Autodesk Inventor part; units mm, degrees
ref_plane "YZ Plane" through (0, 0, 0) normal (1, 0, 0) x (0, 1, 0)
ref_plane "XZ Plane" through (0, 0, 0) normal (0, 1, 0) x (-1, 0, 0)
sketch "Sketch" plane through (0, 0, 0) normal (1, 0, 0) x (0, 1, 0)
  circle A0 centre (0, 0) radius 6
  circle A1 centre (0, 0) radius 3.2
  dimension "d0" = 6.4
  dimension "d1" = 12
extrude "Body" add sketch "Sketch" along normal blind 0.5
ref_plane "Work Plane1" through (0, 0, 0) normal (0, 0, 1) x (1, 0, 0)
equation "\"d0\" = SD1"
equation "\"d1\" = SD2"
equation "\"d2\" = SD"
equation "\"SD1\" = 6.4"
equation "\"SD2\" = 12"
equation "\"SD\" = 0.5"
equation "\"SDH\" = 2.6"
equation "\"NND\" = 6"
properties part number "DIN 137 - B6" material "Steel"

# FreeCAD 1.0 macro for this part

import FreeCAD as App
import Part
import Sketcher
from FreeCAD import Vector
Q = App.Units.Quantity

doc = App.newDocument("Part")
params = doc.addObject("Spreadsheet::Sheet", "Params")
for row, (alias, value) in enumerate([
    ("sketch1_diameter", "12 mm"),
    ("sketch1_diameter2", "6.4 mm"),
    ("pad1_length", "0.5 mm"),
], start=1):
    params.set(f"A{row}", alias)
    params.set(f"B{row}", "=" + value)
    params.setAlias(f"B{row}", alias)

body = doc.addObject("PartDesign::Body", "Body")

sketch1 = doc.addObject("Sketcher::SketchObject", "Sketch")
body.addObject(sketch1)
sketch1.AttachmentSupport = (doc.YZ_Plane, [""])
sketch1.MapMode = "FlatFace"
sketch1.addGeometry([
    Part.Circle(Vector(0, 0, 0), Vector(0, 0, 1), 6),
    Part.Circle(Vector(0, 0, 0), Vector(0, 0, 1), 3.2),
], False)
sketch1.addConstraint([
    Sketcher.Constraint("Coincident", 0, 3, -1, 1),
    Sketcher.Constraint("Coincident", 1, 3, -1, 1),
    Sketcher.Constraint("Diameter", 0, Q("12 mm")),
    Sketcher.Constraint("Diameter", 1, Q("6.4 mm")),
])
sketch1.setExpression("Constraints[2]", "Params.sketch1_diameter")
sketch1.setExpression("Constraints[3]", "Params.sketch1_diameter2")
pad1 = doc.addObject("PartDesign::Pad", "Pad")
body.addObject(pad1)
pad1.Profile = sketch1
pad1.setExpression("Length", "Params.pad1_length")

doc.recompute()
